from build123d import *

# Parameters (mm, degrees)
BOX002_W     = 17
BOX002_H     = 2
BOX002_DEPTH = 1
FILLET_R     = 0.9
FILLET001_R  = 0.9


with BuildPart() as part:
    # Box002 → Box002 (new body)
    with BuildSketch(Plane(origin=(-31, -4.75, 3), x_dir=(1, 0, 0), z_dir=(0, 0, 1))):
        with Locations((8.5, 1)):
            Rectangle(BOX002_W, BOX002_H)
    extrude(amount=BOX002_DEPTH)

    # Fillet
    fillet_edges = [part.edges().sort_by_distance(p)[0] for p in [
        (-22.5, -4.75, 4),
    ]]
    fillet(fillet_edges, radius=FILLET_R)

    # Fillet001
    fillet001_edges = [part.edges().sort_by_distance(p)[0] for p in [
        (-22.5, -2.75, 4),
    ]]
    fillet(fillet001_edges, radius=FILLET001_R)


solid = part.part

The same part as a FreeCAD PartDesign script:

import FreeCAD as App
import Part
import Sketcher
from FreeCAD import Vector


def edges_at(feature, points):
    """Names of the edges that pass closest to the given points."""
    edges = feature.Shape.Edges
    near = lambda p: min(range(len(edges)), key=lambda i: edges[i].distToShape(Part.Vertex(*p))[0])
    return sorted({f"Edge{near(p) + 1}" for p in points})


def add_polygon(sketch, points):
    """Adds a closed chain of lines whose ends are joined by coincident constraints."""
    first, n = sketch.GeometryCount, len(points)
    for a, b in zip(points, points[1:] + points[:1]):
        sketch.addGeometry(Part.LineSegment(App.Vector(*a, 0), App.Vector(*b, 0)), False)
    for i in range(n):
        sketch.addConstraint(Sketcher.Constraint("Coincident", first + i, 2, first + (i + 1) % n, 1))

doc = App.newDocument("Part")
body = doc.addObject("PartDesign::Body", "Body")

# Sketch on XY plane
sketch1 = body.newObject("Sketcher::SketchObject", "Sketch")
sketch1.AttachmentSupport = (doc.getObject("XY_Plane"), [""])
sketch1.MapMode = "FlatFace"
sketch1.AttachmentOffset = App.Placement(Vector(0, 0, 3), App.Rotation())
add_polygon(sketch1, [(-31, -2.8), (-31, -4.8), (-14, -4.8), (-14, -2.8)])  # lines 0-3
sketch1.addConstraint([
    Sketcher.Constraint("Vertical", 0),
    Sketcher.Constraint("Horizontal", 1),
    Sketcher.Constraint("Vertical", 2),
    Sketcher.Constraint("Horizontal", 3),
    Sketcher.Constraint("DistanceX", 1, 1, 1, 2, 17.0),
    Sketcher.Constraint("DistanceY", 0, 2, 0, 1, 2.0),
    Sketcher.Constraint("DistanceX", 0, 2, -1, 1, 31.0),
    Sketcher.Constraint("DistanceY", 0, 2, -1, 1, 4.75),
])
pad1 = body.newObject("PartDesign::Pad", "Pad")
pad1.Profile = sketch1
pad1.Length = 1
doc.recompute()

fillet = body.newObject("PartDesign::Fillet", "Fillet")
fillet.Base = (pad1, edges_at(pad1, [(-22.5, -4.75, 4)]))
fillet.Radius = 0.9
doc.recompute()

fillet2 = body.newObject("PartDesign::Fillet", "Fillet001")
fillet2.Base = (fillet, edges_at(fillet, [(-22.5, -2.75, 4)]))
fillet2.Radius = 0.9

doc.recompute()
